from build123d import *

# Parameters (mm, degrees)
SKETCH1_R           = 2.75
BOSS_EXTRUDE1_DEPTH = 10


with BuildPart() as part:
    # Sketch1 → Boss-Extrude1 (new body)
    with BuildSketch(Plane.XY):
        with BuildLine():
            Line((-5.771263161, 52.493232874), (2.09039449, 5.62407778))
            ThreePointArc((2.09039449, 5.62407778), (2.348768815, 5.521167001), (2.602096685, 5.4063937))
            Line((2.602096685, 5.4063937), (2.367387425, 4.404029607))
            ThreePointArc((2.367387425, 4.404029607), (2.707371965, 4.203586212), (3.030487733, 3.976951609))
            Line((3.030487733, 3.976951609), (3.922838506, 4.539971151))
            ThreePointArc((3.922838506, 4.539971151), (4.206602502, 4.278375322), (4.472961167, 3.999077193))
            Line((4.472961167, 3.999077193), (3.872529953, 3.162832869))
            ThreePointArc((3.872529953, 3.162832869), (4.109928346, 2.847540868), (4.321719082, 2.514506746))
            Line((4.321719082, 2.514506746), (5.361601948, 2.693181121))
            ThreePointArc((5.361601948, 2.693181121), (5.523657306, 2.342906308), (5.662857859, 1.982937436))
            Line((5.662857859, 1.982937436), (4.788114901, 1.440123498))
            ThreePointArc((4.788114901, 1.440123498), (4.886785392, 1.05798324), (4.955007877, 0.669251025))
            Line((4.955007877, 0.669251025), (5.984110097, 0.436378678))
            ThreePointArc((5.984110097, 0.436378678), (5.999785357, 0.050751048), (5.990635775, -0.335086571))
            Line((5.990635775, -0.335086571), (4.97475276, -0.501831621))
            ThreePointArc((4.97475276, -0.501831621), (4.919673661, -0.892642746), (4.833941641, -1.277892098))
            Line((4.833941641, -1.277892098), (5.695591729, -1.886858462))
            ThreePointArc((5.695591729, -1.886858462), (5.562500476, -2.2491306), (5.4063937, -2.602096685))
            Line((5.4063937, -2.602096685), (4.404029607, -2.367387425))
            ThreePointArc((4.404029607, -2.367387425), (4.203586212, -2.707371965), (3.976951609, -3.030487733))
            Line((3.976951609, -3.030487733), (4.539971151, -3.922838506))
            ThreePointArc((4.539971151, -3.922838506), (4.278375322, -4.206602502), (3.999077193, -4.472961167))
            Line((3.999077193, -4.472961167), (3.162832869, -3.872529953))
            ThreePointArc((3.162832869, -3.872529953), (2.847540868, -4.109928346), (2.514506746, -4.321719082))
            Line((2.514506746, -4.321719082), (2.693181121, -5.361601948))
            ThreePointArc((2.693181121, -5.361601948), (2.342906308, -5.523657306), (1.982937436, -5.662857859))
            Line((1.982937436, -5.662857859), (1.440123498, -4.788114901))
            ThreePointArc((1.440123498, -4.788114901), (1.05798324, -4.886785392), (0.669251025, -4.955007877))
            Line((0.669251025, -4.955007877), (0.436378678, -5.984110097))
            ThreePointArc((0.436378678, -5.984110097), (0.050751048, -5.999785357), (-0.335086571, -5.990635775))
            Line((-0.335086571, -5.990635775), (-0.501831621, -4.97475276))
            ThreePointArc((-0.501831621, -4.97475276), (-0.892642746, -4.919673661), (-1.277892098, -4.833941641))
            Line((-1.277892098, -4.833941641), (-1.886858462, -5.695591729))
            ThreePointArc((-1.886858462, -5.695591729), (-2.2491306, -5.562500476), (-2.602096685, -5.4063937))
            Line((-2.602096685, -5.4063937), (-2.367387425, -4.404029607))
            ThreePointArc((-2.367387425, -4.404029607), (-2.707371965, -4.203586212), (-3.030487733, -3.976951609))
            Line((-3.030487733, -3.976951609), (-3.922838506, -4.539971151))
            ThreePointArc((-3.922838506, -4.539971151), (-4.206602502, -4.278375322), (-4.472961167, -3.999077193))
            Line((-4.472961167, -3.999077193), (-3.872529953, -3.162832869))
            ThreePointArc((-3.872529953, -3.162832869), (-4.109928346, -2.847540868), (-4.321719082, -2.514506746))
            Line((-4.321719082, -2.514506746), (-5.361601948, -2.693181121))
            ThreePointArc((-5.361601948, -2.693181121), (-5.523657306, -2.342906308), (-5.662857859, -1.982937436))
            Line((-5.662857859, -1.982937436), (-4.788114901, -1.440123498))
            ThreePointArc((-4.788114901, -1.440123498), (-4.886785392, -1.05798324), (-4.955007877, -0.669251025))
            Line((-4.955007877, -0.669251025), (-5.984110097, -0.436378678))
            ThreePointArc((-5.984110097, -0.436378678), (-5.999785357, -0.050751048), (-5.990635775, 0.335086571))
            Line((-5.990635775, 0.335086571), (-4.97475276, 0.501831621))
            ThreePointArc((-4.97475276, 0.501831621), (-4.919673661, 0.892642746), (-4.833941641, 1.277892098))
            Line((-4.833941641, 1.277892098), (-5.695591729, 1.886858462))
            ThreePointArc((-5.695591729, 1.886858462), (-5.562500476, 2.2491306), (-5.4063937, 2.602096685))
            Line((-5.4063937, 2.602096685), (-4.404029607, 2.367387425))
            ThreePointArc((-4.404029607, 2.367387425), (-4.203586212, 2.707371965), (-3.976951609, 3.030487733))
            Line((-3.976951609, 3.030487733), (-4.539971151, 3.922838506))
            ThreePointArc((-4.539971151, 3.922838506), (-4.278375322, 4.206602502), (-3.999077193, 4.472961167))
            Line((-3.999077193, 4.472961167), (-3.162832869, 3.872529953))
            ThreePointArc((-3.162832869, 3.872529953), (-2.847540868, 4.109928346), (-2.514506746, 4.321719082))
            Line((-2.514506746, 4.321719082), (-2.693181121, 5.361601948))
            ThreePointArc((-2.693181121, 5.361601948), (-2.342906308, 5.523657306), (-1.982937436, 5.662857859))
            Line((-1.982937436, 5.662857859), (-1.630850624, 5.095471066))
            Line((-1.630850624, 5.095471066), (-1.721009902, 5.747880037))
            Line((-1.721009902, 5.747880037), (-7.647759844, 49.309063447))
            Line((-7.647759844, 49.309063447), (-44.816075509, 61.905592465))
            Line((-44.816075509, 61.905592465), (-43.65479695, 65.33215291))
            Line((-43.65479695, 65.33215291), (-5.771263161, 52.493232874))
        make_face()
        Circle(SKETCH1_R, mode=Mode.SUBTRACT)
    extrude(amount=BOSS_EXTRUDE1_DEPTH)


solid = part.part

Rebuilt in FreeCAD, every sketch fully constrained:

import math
import FreeCAD as App
import Part
import Sketcher

doc = App.newDocument("Part")
params = doc.addObject("Spreadsheet::Sheet", "Params")
for row, (alias, value) in enumerate([
    ("sketch1_radius", "6 mm"),
    ("sketch1_radius2", "5 mm"),
    ("sketch1_diameter", "5.5 mm"),
    ("sketch1_length", "40 mm"),
    ("pad1_length", "10 mm"),
], start=1):
    params.set(f"A{row}", alias)
    params.set(f"B{row}", "=" + value)
    params.setAlias(f"B{row}", alias)

body = doc.addObject("PartDesign::Body", "Body")

sketch1 = doc.addObject("Sketcher::SketchObject", "Sketch")
body.addObject(sketch1)
sketch1.AttachmentSupport = (doc.XY_Plane, [""])
sketch1.MapMode = "FlatFace"
sketch1.addGeometry([
    Part.LineSegment(App.Vector(2.090394, 5.624078, 0), App.Vector(-5.771263, 52.493233, 0)),
    Part.LineSegment(App.Vector(-5.771263, 52.493233, 0), App.Vector(-43.654797, 65.332153, 0)),
    Part.LineSegment(App.Vector(-43.654797, 65.332153, 0), App.Vector(-44.816076, 61.905592, 0)),
    Part.LineSegment(App.Vector(-44.816076, 61.905592, 0), App.Vector(-7.64776, 49.309063, 0)),
    Part.LineSegment(App.Vector(-7.64776, 49.309063, 0), App.Vector(-1.72101, 5.74788, 0)),
    Part.LineSegment(App.Vector(-1.72101, 5.74788, 0), App.Vector(-1.630851, 5.095471, 0)),
    Part.LineSegment(App.Vector(-1.630851, 5.095471, 0), App.Vector(-1.982937, 5.662858, 0)),
    Part.ArcOfCircle(Part.Circle(App.Vector(0, 0, 0), App.Vector(0, 0, 1), 6), math.radians(109.298493), math.radians(116.670792)),
    Part.LineSegment(App.Vector(-2.693181, 5.361602, 0), App.Vector(-2.514507, 4.321719, 0)),
    Part.ArcOfCircle(Part.Circle(App.Vector(0, 0, 0), App.Vector(0, 0, 1), 5), math.radians(120.192138), math.radians(129.239735)),
    Part.LineSegment(App.Vector(-3.162833, 3.87253, 0), App.Vector(-3.999077, 4.472961, 0)),
    Part.ArcOfCircle(Part.Circle(App.Vector(0, 0, 0), App.Vector(0, 0, 1), 6), math.radians(131.798493), math.radians(139.170792)),
    Part.LineSegment(App.Vector(-4.539971, 3.922839, 0), App.Vector(-3.976952, 3.030488, 0)),
    Part.ArcOfCircle(Part.Circle(App.Vector(0, 0, 0), App.Vector(0, 0, 1), 5), math.radians(142.692138), math.radians(151.739735)),
    Part.LineSegment(App.Vector(-4.40403, 2.367387, 0), App.Vector(-5.406394, 2.602097, 0)),
    Part.ArcOfCircle(Part.Circle(App.Vector(0, 0, 0), App.Vector(0, 0, 1), 6), math.radians(154.298493), math.radians(161.670792)),
    Part.LineSegment(App.Vector(-5.695592, 1.886858, 0), App.Vector(-4.833942, 1.277892, 0)),
    Part.ArcOfCircle(Part.Circle(App.Vector(0, 0, 0), App.Vector(0, 0, 1), 5), math.radians(165.192138), math.radians(174.239735)),
    Part.LineSegment(App.Vector(-4.974753, 0.501832, 0), App.Vector(-5.990636, 0.335087, 0)),
    Part.ArcOfCircle(Part.Circle(App.Vector(0, 0, 0), App.Vector(0, 0, 1), 6), math.radians(176.798493), math.radians(184.170792)),
    Part.LineSegment(App.Vector(-5.98411, -0.436379, 0), App.Vector(-4.955008, -0.669251, 0)),
    Part.ArcOfCircle(Part.Circle(App.Vector(0, 0, 0), App.Vector(0, 0, 1), 5), math.radians(-172.307862), math.radians(-163.260265)),
    Part.LineSegment(App.Vector(-4.788115, -1.440123, 0), App.Vector(-5.662858, -1.982937, 0)),
    Part.ArcOfCircle(Part.Circle(App.Vector(0, 0, 0), App.Vector(0, 0, 1), 6), math.radians(-160.701507), math.radians(-153.329208)),
    Part.LineSegment(App.Vector(-5.361602, -2.693181, 0), App.Vector(-4.321719, -2.514507, 0)),
    Part.ArcOfCircle(Part.Circle(App.Vector(0, 0, 0), App.Vector(0, 0, 1), 5), math.radians(-149.807862), math.radians(-140.760265)),
    Part.LineSegment(App.Vector(-3.87253, -3.162833, 0), App.Vector(-4.472961, -3.999077, 0)),
    Part.ArcOfCircle(Part.Circle(App.Vector(0, 0, 0), App.Vector(0, 0, 1), 6), math.radians(-138.201507), math.radians(-130.829208)),
    Part.LineSegment(App.Vector(-3.922839, -4.539971, 0), App.Vector(-3.030488, -3.976952, 0)),
    Part.ArcOfCircle(Part.Circle(App.Vector(0, 0, 0), App.Vector(0, 0, 1), 5), math.radians(-127.307862), math.radians(-118.260265)),
    Part.LineSegment(App.Vector(-2.367387, -4.40403, 0), App.Vector(-2.602097, -5.406394, 0)),
    Part.ArcOfCircle(Part.Circle(App.Vector(0, 0, 0), App.Vector(0, 0, 1), 6), math.radians(-115.701507), math.radians(-108.329208)),
    Part.LineSegment(App.Vector(-1.886858, -5.695592, 0), App.Vector(-1.277892, -4.833942, 0)),
    Part.ArcOfCircle(Part.Circle(App.Vector(0, 0, 0), App.Vector(0, 0, 1), 5), math.radians(-104.807862), math.radians(-95.760265)),
    Part.LineSegment(App.Vector(-0.501832, -4.974753, 0), App.Vector(-0.335087, -5.990636, 0)),
    Part.ArcOfCircle(Part.Circle(App.Vector(0, 0, 0), App.Vector(0, 0, 1), 6), math.radians(-93.201507), math.radians(-85.829208)),
    Part.LineSegment(App.Vector(0.436379, -5.98411, 0), App.Vector(0.669251, -4.955008, 0)),
    Part.ArcOfCircle(Part.Circle(App.Vector(0, 0, 0), App.Vector(0, 0, 1), 5), math.radians(-82.307862), math.radians(-73.260265)),
    Part.LineSegment(App.Vector(1.440123, -4.788115, 0), App.Vector(1.982937, -5.662858, 0)),
    Part.ArcOfCircle(Part.Circle(App.Vector(0, 0, 0), App.Vector(0, 0, 1), 6), math.radians(-70.701507), math.radians(-63.329208)),
    Part.LineSegment(App.Vector(2.693181, -5.361602, 0), App.Vector(2.514507, -4.321719, 0)),
    Part.ArcOfCircle(Part.Circle(App.Vector(0, 0, 0), App.Vector(0, 0, 1), 5), math.radians(-59.807862), math.radians(-50.760265)),
    Part.LineSegment(App.Vector(3.162833, -3.87253, 0), App.Vector(3.999077, -4.472961, 0)),
    Part.ArcOfCircle(Part.Circle(App.Vector(0, 0, 0), App.Vector(0, 0, 1), 6), math.radians(-48.201507), math.radians(-40.829208)),
    Part.LineSegment(App.Vector(4.539971, -3.922839, 0), App.Vector(3.976952, -3.030488, 0)),
    Part.ArcOfCircle(Part.Circle(App.Vector(0, 0, 0), App.Vector(0, 0, 1), 5), math.radians(-37.307862), math.radians(-28.260265)),
    Part.LineSegment(App.Vector(4.40403, -2.367387, 0), App.Vector(5.406394, -2.602097, 0)),
    Part.ArcOfCircle(Part.Circle(App.Vector(0, 0, 0), App.Vector(0, 0, 1), 6), math.radians(-25.701507), math.radians(-18.329208)),
    Part.LineSegment(App.Vector(5.695592, -1.886858, 0), App.Vector(4.833942, -1.277892, 0)),
    Part.ArcOfCircle(Part.Circle(App.Vector(0, 0, 0), App.Vector(0, 0, 1), 5), math.radians(-14.807862), math.radians(-5.760265)),
    Part.LineSegment(App.Vector(4.974753, -0.501832, 0), App.Vector(5.990636, -0.335087, 0)),
    Part.ArcOfCircle(Part.Circle(App.Vector(0, 0, 0), App.Vector(0, 0, 1), 6), math.radians(-3.201507), math.radians(4.170792)),
    Part.LineSegment(App.Vector(5.98411, 0.436379, 0), App.Vector(4.955008, 0.669251, 0)),
    Part.ArcOfCircle(Part.Circle(App.Vector(0, 0, 0), App.Vector(0, 0, 1), 5), math.radians(7.692138), math.radians(16.739735)),
    Part.LineSegment(App.Vector(4.788115, 1.440123, 0), App.Vector(5.662858, 1.982937, 0)),
    Part.ArcOfCircle(Part.Circle(App.Vector(0, 0, 0), App.Vector(0, 0, 1), 6), math.radians(19.298493), math.radians(26.670792)),
    Part.LineSegment(App.Vector(5.361602, 2.693181, 0), App.Vector(4.321719, 2.514507, 0)),
    Part.ArcOfCircle(Part.Circle(App.Vector(0, 0, 0), App.Vector(0, 0, 1), 5), math.radians(30.192138), math.radians(39.239735)),
    Part.LineSegment(App.Vector(3.87253, 3.162833, 0), App.Vector(4.472961, 3.999077, 0)),
    Part.ArcOfCircle(Part.Circle(App.Vector(0, 0, 0), App.Vector(0, 0, 1), 6), math.radians(41.798493), math.radians(49.170792)),
    Part.LineSegment(App.Vector(3.922839, 4.539971, 0), App.Vector(3.030488, 3.976952, 0)),
    Part.ArcOfCircle(Part.Circle(App.Vector(0, 0, 0), App.Vector(0, 0, 1), 5), math.radians(52.692138), math.radians(61.739735)),
    Part.LineSegment(App.Vector(2.367387, 4.40403, 0), App.Vector(2.602097, 5.406394, 0)),
    Part.ArcOfCircle(Part.Circle(App.Vector(0, 0, 0), App.Vector(0, 0, 1), 6), math.radians(64.298493), math.radians(69.610573)),
    Part.Circle(App.Vector(0, 0, 0), App.Vector(0, 0, 1), 2.75),
], False)
sketch1.addConstraint([
    Sketcher.Constraint("Coincident", 0, 2, 1, 1),
    Sketcher.Constraint("Coincident", 1, 2, 2, 1),
    Sketcher.Constraint("Coincident", 2, 2, 3, 1),
    Sketcher.Constraint("Coincident", 3, 2, 4, 1),
    Sketcher.Constraint("Coincident", 4, 2, 5, 1),
    Sketcher.Constraint("Coincident", 5, 2, 6, 1),
    Sketcher.Constraint("Coincident", 6, 2, 7, 1),
    Sketcher.Constraint("Coincident", 7, 2, 8, 1),
    Sketcher.Constraint("Coincident", 8, 2, 9, 1),
    Sketcher.Constraint("Coincident", 9, 2, 10, 1),
    Sketcher.Constraint("Coincident", 10, 2, 11, 1),
    Sketcher.Constraint("Coincident", 11, 2, 12, 1),
    Sketcher.Constraint("Coincident", 12, 2, 13, 1),
    Sketcher.Constraint("Coincident", 13, 2, 14, 1),
    Sketcher.Constraint("Coincident", 14, 2, 15, 1),
    Sketcher.Constraint("Coincident", 15, 2, 16, 1),
    Sketcher.Constraint("Coincident", 16, 2, 17, 1),
    Sketcher.Constraint("Coincident", 17, 2, 18, 1),
    Sketcher.Constraint("Coincident", 18, 2, 19, 1),
    Sketcher.Constraint("Coincident", 19, 2, 20, 1),
    Sketcher.Constraint("Coincident", 20, 2, 21, 1),
    Sketcher.Constraint("Coincident", 21, 2, 22, 1),
    Sketcher.Constraint("Coincident", 22, 2, 23, 1),
    Sketcher.Constraint("Coincident", 23, 2, 24, 1),
    Sketcher.Constraint("Coincident", 24, 2, 25, 1),
    Sketcher.Constraint("Coincident", 25, 2, 26, 1),
    Sketcher.Constraint("Coincident", 26, 2, 27, 1),
    Sketcher.Constraint("Coincident", 27, 2, 28, 1),
    Sketcher.Constraint("Coincident", 28, 2, 29, 1),
    Sketcher.Constraint("Coincident", 29, 2, 30, 1),
    Sketcher.Constraint("Coincident", 30, 2, 31, 1),
    Sketcher.Constraint("Coincident", 31, 2, 32, 1),
    Sketcher.Constraint("Coincident", 32, 2, 33, 1),
    Sketcher.Constraint("Coincident", 33, 2, 34, 1),
    Sketcher.Constraint("Coincident", 34, 2, 35, 1),
    Sketcher.Constraint("Coincident", 35, 2, 36, 1),
    Sketcher.Constraint("Coincident", 36, 2, 37, 1),
    Sketcher.Constraint("Coincident", 37, 2, 38, 1),
    Sketcher.Constraint("Coincident", 38, 2, 39, 1),
    Sketcher.Constraint("Coincident", 39, 2, 40, 1),
    Sketcher.Constraint("Coincident", 40, 2, 41, 1),
    Sketcher.Constraint("Coincident", 41, 2, 42, 1),
    Sketcher.Constraint("Coincident", 42, 2, 43, 1),
    Sketcher.Constraint("Coincident", 43, 2, 44, 1),
    Sketcher.Constraint("Coincident", 44, 2, 45, 1),
    Sketcher.Constraint("Coincident", 45, 2, 46, 1),
    Sketcher.Constraint("Coincident", 46, 2, 47, 1),
    Sketcher.Constraint("Coincident", 47, 2, 48, 1),
    Sketcher.Constraint("Coincident", 48, 2, 49, 1),
    Sketcher.Constraint("Coincident", 49, 2, 50, 1),
    Sketcher.Constraint("Coincident", 50, 2, 51, 1),
    Sketcher.Constraint("Coincident", 51, 2, 52, 1),
    Sketcher.Constraint("Coincident", 52, 2, 53, 1),
    Sketcher.Constraint("Coincident", 53, 2, 54, 1),
    Sketcher.Constraint("Coincident", 54, 2, 55, 1),
    Sketcher.Constraint("Coincident", 55, 2, 56, 1),
    Sketcher.Constraint("Coincident", 56, 2, 57, 1),
    Sketcher.Constraint("Coincident", 57, 2, 58, 1),
    Sketcher.Constraint("Coincident", 58, 2, 59, 1),
    Sketcher.Constraint("Coincident", 59, 2, 60, 1),
    Sketcher.Constraint("Coincident", 60, 2, 61, 1),
    Sketcher.Constraint("Coincident", 61, 2, 62, 1),
    Sketcher.Constraint("Coincident", 62, 2, 63, 1),
    Sketcher.Constraint("Coincident", 63, 2, 0, 1),
    Sketcher.Constraint("Coincident", 7, 3, -1, 1),
    Sketcher.Constraint("Coincident", 9, 3, -1, 1),
    Sketcher.Constraint("Coincident", 11, 3, -1, 1),
    Sketcher.Constraint("Coincident", 13, 3, -1, 1),
    Sketcher.Constraint("Coincident", 15, 3, -1, 1),
    Sketcher.Constraint("Coincident", 17, 3, -1, 1),
    Sketcher.Constraint("Coincident", 19, 3, -1, 1),
    Sketcher.Constraint("Coincident", 21, 3, -1, 1),
    Sketcher.Constraint("Coincident", 23, 3, -1, 1),
    Sketcher.Constraint("Coincident", 25, 3, -1, 1),
    Sketcher.Constraint("Coincident", 27, 3, -1, 1),
    Sketcher.Constraint("Coincident", 29, 3, -1, 1),
    Sketcher.Constraint("Coincident", 31, 3, -1, 1),
    Sketcher.Constraint("Coincident", 33, 3, -1, 1),
    Sketcher.Constraint("Coincident", 35, 3, -1, 1),
    Sketcher.Constraint("Coincident", 37, 3, -1, 1),
    Sketcher.Constraint("Coincident", 39, 3, -1, 1),
    Sketcher.Constraint("Coincident", 41, 3, -1, 1),
    Sketcher.Constraint("Coincident", 43, 3, -1, 1),
    Sketcher.Constraint("Coincident", 45, 3, -1, 1),
    Sketcher.Constraint("Coincident", 47, 3, -1, 1),
    Sketcher.Constraint("Coincident", 49, 3, -1, 1),
    Sketcher.Constraint("Coincident", 51, 3, -1, 1),
    Sketcher.Constraint("Coincident", 53, 3, -1, 1),
    Sketcher.Constraint("Coincident", 55, 3, -1, 1),
    Sketcher.Constraint("Coincident", 57, 3, -1, 1),
    Sketcher.Constraint("Coincident", 59, 3, -1, 1),
    Sketcher.Constraint("Coincident", 61, 3, -1, 1),
    Sketcher.Constraint("Coincident", 63, 3, -1, 1),
    Sketcher.Constraint("Coincident", 64, 3, -1, 1),
    Sketcher.Constraint("Equal", 7, 11),
    Sketcher.Constraint("Equal", 9, 13),
    Sketcher.Constraint("Equal", 11, 15),
    Sketcher.Constraint("Equal", 13, 17),
    Sketcher.Constraint("Equal", 15, 19),
    Sketcher.Constraint("Equal", 17, 21),
    Sketcher.Constraint("Equal", 19, 23),
    Sketcher.Constraint("Equal", 21, 25),
    Sketcher.Constraint("Equal", 23, 27),
    Sketcher.Constraint("Equal", 25, 29),
    Sketcher.Constraint("Equal", 27, 31),
    Sketcher.Constraint("Equal", 29, 33),
    Sketcher.Constraint("Equal", 31, 35),
    Sketcher.Constraint("Equal", 33, 37),
    Sketcher.Constraint("Equal", 35, 39),
    Sketcher.Constraint("Equal", 37, 41),
    Sketcher.Constraint("Equal", 39, 43),
    Sketcher.Constraint("Equal", 41, 45),
    Sketcher.Constraint("Equal", 43, 47),
    Sketcher.Constraint("Equal", 45, 49),
    Sketcher.Constraint("Equal", 47, 51),
    Sketcher.Constraint("Equal", 49, 53),
    Sketcher.Constraint("Equal", 51, 55),
    Sketcher.Constraint("Equal", 53, 57),
    Sketcher.Constraint("Equal", 55, 59),
    Sketcher.Constraint("Equal", 57, 61),
    Sketcher.Constraint("Equal", 59, 63),
    Sketcher.Constraint("Perpendicular", 1, 2),
    Sketcher.Constraint("Perpendicular", 2, 3),
    Sketcher.Constraint("Perpendicular", 6, 22),
    Sketcher.Constraint("Perpendicular", 8, 24),
    Sketcher.Constraint("Perpendicular", 10, 26),
    Sketcher.Constraint("Perpendicular", 12, 28),
    Sketcher.Constraint("Perpendicular", 14, 30),
    Sketcher.Constraint("Perpendicular", 16, 32),
    Sketcher.Constraint("Perpendicular", 18, 34),
    Sketcher.Constraint("Perpendicular", 20, 36),
    Sketcher.Constraint("Perpendicular", 22, 38),
    Sketcher.Constraint("Perpendicular", 24, 40),
    Sketcher.Constraint("Perpendicular", 26, 42),
    Sketcher.Constraint("Perpendicular", 28, 44),
    Sketcher.Constraint("Perpendicular", 30, 46),
    Sketcher.Constraint("Perpendicular", 32, 48),
    Sketcher.Constraint("Perpendicular", 34, 50),
    Sketcher.Constraint("Perpendicular", 36, 52),
    Sketcher.Constraint("Perpendicular", 38, 54),
    Sketcher.Constraint("Perpendicular", 40, 56),
    Sketcher.Constraint("Perpendicular", 42, 58),
    Sketcher.Constraint("Perpendicular", 44, 60),
    Sketcher.Constraint("Perpendicular", 46, 62),
    Sketcher.Constraint("Equal", 8, 12),
    Sketcher.Constraint("Equal", 10, 14),
    Sketcher.Constraint("Equal", 12, 16),
    Sketcher.Constraint("Equal", 14, 18),
    Sketcher.Constraint("Equal", 16, 20),
    Sketcher.Constraint("Equal", 18, 22),
    Sketcher.Constraint("Equal", 20, 24),
    Sketcher.Constraint("Equal", 22, 26),
    Sketcher.Constraint("Equal", 24, 28),
    Sketcher.Constraint("Equal", 26, 30),
    Sketcher.Constraint("Equal", 28, 32),
    Sketcher.Constraint("Equal", 30, 34),
    Sketcher.Constraint("Equal", 32, 36),
    Sketcher.Constraint("Equal", 34, 38),
    Sketcher.Constraint("Equal", 36, 40),
    Sketcher.Constraint("Equal", 38, 42),
    Sketcher.Constraint("Equal", 40, 44),
    Sketcher.Constraint("Equal", 42, 46),
    Sketcher.Constraint("Equal", 44, 48),
    Sketcher.Constraint("Equal", 46, 50),
    Sketcher.Constraint("Equal", 48, 52),
    Sketcher.Constraint("Equal", 50, 54),
    Sketcher.Constraint("Equal", 52, 56),
    Sketcher.Constraint("Equal", 54, 58),
    Sketcher.Constraint("Equal", 56, 60),
    Sketcher.Constraint("Equal", 58, 62),
    Sketcher.Constraint("Radius", 7, 6.0),
    Sketcher.Constraint("Radius", 9, 5.0),
    Sketcher.Constraint("Diameter", 64, 5.5),
    Sketcher.Constraint("Distance", 1, 40.0),
    Sketcher.Constraint("DistanceY", -1, 1, 7, 2, 5.361602),
    Sketcher.Constraint("Distance", 4, 43.962519),
    Sketcher.Constraint("Distance", 5, 0.658609),
    Sketcher.Constraint("Distance", 8, 1.055121),
    Sketcher.Constraint("DistanceX", 3, 2, -1, 1, 7.64776),
    Sketcher.Constraint("DistanceX", 4, 2, -1, 1, 1.72101),
    Sketcher.Constraint("DistanceY", -1, 1, 4, 2, 5.74788),
    Sketcher.Constraint("DistanceX", 5, 2, -1, 1, 1.630851),
    Sketcher.Constraint("DistanceY", -1, 1, 9, 2, 3.87253),
    Sketcher.Constraint("DistanceY", -1, 1, 10, 2, 4.472961),
    Sketcher.Constraint("DistanceX", 11, 2, -1, 1, 4.539971),
    Sketcher.Constraint("DistanceX", 13, 2, -1, 1, 4.40403),
    Sketcher.Constraint("DistanceX", 15, 2, -1, 1, 5.695592),
    Sketcher.Constraint("DistanceY", -1, 1, 17, 2, 0.501832),
    Sketcher.Constraint("DistanceX", 19, 2, -1, 1, 5.98411),
    Sketcher.Constraint("Distance", 0, 47.523924),
    Sketcher.Constraint("Distance", 2, 3.617995),
    Sketcher.Constraint("Distance", 3, 39.244824),
    Sketcher.Constraint("Distance", 6, 0.667752),
    Sketcher.Constraint("DistanceX", 0, 2, -1, 1, 5.771263),
])
sketch1.setExpression("Constraints[170]", "Params.sketch1_radius")
sketch1.setExpression("Constraints[171]", "Params.sketch1_radius2")
sketch1.setExpression("Constraints[172]", "Params.sketch1_diameter")
sketch1.setExpression("Constraints[173]", "Params.sketch1_length")
pad1 = doc.addObject("PartDesign::Pad", "Pad")
body.addObject(pad1)
pad1.Profile = sketch1
pad1.setExpression("Length", "Params.pad1_length")

doc.recompute()
